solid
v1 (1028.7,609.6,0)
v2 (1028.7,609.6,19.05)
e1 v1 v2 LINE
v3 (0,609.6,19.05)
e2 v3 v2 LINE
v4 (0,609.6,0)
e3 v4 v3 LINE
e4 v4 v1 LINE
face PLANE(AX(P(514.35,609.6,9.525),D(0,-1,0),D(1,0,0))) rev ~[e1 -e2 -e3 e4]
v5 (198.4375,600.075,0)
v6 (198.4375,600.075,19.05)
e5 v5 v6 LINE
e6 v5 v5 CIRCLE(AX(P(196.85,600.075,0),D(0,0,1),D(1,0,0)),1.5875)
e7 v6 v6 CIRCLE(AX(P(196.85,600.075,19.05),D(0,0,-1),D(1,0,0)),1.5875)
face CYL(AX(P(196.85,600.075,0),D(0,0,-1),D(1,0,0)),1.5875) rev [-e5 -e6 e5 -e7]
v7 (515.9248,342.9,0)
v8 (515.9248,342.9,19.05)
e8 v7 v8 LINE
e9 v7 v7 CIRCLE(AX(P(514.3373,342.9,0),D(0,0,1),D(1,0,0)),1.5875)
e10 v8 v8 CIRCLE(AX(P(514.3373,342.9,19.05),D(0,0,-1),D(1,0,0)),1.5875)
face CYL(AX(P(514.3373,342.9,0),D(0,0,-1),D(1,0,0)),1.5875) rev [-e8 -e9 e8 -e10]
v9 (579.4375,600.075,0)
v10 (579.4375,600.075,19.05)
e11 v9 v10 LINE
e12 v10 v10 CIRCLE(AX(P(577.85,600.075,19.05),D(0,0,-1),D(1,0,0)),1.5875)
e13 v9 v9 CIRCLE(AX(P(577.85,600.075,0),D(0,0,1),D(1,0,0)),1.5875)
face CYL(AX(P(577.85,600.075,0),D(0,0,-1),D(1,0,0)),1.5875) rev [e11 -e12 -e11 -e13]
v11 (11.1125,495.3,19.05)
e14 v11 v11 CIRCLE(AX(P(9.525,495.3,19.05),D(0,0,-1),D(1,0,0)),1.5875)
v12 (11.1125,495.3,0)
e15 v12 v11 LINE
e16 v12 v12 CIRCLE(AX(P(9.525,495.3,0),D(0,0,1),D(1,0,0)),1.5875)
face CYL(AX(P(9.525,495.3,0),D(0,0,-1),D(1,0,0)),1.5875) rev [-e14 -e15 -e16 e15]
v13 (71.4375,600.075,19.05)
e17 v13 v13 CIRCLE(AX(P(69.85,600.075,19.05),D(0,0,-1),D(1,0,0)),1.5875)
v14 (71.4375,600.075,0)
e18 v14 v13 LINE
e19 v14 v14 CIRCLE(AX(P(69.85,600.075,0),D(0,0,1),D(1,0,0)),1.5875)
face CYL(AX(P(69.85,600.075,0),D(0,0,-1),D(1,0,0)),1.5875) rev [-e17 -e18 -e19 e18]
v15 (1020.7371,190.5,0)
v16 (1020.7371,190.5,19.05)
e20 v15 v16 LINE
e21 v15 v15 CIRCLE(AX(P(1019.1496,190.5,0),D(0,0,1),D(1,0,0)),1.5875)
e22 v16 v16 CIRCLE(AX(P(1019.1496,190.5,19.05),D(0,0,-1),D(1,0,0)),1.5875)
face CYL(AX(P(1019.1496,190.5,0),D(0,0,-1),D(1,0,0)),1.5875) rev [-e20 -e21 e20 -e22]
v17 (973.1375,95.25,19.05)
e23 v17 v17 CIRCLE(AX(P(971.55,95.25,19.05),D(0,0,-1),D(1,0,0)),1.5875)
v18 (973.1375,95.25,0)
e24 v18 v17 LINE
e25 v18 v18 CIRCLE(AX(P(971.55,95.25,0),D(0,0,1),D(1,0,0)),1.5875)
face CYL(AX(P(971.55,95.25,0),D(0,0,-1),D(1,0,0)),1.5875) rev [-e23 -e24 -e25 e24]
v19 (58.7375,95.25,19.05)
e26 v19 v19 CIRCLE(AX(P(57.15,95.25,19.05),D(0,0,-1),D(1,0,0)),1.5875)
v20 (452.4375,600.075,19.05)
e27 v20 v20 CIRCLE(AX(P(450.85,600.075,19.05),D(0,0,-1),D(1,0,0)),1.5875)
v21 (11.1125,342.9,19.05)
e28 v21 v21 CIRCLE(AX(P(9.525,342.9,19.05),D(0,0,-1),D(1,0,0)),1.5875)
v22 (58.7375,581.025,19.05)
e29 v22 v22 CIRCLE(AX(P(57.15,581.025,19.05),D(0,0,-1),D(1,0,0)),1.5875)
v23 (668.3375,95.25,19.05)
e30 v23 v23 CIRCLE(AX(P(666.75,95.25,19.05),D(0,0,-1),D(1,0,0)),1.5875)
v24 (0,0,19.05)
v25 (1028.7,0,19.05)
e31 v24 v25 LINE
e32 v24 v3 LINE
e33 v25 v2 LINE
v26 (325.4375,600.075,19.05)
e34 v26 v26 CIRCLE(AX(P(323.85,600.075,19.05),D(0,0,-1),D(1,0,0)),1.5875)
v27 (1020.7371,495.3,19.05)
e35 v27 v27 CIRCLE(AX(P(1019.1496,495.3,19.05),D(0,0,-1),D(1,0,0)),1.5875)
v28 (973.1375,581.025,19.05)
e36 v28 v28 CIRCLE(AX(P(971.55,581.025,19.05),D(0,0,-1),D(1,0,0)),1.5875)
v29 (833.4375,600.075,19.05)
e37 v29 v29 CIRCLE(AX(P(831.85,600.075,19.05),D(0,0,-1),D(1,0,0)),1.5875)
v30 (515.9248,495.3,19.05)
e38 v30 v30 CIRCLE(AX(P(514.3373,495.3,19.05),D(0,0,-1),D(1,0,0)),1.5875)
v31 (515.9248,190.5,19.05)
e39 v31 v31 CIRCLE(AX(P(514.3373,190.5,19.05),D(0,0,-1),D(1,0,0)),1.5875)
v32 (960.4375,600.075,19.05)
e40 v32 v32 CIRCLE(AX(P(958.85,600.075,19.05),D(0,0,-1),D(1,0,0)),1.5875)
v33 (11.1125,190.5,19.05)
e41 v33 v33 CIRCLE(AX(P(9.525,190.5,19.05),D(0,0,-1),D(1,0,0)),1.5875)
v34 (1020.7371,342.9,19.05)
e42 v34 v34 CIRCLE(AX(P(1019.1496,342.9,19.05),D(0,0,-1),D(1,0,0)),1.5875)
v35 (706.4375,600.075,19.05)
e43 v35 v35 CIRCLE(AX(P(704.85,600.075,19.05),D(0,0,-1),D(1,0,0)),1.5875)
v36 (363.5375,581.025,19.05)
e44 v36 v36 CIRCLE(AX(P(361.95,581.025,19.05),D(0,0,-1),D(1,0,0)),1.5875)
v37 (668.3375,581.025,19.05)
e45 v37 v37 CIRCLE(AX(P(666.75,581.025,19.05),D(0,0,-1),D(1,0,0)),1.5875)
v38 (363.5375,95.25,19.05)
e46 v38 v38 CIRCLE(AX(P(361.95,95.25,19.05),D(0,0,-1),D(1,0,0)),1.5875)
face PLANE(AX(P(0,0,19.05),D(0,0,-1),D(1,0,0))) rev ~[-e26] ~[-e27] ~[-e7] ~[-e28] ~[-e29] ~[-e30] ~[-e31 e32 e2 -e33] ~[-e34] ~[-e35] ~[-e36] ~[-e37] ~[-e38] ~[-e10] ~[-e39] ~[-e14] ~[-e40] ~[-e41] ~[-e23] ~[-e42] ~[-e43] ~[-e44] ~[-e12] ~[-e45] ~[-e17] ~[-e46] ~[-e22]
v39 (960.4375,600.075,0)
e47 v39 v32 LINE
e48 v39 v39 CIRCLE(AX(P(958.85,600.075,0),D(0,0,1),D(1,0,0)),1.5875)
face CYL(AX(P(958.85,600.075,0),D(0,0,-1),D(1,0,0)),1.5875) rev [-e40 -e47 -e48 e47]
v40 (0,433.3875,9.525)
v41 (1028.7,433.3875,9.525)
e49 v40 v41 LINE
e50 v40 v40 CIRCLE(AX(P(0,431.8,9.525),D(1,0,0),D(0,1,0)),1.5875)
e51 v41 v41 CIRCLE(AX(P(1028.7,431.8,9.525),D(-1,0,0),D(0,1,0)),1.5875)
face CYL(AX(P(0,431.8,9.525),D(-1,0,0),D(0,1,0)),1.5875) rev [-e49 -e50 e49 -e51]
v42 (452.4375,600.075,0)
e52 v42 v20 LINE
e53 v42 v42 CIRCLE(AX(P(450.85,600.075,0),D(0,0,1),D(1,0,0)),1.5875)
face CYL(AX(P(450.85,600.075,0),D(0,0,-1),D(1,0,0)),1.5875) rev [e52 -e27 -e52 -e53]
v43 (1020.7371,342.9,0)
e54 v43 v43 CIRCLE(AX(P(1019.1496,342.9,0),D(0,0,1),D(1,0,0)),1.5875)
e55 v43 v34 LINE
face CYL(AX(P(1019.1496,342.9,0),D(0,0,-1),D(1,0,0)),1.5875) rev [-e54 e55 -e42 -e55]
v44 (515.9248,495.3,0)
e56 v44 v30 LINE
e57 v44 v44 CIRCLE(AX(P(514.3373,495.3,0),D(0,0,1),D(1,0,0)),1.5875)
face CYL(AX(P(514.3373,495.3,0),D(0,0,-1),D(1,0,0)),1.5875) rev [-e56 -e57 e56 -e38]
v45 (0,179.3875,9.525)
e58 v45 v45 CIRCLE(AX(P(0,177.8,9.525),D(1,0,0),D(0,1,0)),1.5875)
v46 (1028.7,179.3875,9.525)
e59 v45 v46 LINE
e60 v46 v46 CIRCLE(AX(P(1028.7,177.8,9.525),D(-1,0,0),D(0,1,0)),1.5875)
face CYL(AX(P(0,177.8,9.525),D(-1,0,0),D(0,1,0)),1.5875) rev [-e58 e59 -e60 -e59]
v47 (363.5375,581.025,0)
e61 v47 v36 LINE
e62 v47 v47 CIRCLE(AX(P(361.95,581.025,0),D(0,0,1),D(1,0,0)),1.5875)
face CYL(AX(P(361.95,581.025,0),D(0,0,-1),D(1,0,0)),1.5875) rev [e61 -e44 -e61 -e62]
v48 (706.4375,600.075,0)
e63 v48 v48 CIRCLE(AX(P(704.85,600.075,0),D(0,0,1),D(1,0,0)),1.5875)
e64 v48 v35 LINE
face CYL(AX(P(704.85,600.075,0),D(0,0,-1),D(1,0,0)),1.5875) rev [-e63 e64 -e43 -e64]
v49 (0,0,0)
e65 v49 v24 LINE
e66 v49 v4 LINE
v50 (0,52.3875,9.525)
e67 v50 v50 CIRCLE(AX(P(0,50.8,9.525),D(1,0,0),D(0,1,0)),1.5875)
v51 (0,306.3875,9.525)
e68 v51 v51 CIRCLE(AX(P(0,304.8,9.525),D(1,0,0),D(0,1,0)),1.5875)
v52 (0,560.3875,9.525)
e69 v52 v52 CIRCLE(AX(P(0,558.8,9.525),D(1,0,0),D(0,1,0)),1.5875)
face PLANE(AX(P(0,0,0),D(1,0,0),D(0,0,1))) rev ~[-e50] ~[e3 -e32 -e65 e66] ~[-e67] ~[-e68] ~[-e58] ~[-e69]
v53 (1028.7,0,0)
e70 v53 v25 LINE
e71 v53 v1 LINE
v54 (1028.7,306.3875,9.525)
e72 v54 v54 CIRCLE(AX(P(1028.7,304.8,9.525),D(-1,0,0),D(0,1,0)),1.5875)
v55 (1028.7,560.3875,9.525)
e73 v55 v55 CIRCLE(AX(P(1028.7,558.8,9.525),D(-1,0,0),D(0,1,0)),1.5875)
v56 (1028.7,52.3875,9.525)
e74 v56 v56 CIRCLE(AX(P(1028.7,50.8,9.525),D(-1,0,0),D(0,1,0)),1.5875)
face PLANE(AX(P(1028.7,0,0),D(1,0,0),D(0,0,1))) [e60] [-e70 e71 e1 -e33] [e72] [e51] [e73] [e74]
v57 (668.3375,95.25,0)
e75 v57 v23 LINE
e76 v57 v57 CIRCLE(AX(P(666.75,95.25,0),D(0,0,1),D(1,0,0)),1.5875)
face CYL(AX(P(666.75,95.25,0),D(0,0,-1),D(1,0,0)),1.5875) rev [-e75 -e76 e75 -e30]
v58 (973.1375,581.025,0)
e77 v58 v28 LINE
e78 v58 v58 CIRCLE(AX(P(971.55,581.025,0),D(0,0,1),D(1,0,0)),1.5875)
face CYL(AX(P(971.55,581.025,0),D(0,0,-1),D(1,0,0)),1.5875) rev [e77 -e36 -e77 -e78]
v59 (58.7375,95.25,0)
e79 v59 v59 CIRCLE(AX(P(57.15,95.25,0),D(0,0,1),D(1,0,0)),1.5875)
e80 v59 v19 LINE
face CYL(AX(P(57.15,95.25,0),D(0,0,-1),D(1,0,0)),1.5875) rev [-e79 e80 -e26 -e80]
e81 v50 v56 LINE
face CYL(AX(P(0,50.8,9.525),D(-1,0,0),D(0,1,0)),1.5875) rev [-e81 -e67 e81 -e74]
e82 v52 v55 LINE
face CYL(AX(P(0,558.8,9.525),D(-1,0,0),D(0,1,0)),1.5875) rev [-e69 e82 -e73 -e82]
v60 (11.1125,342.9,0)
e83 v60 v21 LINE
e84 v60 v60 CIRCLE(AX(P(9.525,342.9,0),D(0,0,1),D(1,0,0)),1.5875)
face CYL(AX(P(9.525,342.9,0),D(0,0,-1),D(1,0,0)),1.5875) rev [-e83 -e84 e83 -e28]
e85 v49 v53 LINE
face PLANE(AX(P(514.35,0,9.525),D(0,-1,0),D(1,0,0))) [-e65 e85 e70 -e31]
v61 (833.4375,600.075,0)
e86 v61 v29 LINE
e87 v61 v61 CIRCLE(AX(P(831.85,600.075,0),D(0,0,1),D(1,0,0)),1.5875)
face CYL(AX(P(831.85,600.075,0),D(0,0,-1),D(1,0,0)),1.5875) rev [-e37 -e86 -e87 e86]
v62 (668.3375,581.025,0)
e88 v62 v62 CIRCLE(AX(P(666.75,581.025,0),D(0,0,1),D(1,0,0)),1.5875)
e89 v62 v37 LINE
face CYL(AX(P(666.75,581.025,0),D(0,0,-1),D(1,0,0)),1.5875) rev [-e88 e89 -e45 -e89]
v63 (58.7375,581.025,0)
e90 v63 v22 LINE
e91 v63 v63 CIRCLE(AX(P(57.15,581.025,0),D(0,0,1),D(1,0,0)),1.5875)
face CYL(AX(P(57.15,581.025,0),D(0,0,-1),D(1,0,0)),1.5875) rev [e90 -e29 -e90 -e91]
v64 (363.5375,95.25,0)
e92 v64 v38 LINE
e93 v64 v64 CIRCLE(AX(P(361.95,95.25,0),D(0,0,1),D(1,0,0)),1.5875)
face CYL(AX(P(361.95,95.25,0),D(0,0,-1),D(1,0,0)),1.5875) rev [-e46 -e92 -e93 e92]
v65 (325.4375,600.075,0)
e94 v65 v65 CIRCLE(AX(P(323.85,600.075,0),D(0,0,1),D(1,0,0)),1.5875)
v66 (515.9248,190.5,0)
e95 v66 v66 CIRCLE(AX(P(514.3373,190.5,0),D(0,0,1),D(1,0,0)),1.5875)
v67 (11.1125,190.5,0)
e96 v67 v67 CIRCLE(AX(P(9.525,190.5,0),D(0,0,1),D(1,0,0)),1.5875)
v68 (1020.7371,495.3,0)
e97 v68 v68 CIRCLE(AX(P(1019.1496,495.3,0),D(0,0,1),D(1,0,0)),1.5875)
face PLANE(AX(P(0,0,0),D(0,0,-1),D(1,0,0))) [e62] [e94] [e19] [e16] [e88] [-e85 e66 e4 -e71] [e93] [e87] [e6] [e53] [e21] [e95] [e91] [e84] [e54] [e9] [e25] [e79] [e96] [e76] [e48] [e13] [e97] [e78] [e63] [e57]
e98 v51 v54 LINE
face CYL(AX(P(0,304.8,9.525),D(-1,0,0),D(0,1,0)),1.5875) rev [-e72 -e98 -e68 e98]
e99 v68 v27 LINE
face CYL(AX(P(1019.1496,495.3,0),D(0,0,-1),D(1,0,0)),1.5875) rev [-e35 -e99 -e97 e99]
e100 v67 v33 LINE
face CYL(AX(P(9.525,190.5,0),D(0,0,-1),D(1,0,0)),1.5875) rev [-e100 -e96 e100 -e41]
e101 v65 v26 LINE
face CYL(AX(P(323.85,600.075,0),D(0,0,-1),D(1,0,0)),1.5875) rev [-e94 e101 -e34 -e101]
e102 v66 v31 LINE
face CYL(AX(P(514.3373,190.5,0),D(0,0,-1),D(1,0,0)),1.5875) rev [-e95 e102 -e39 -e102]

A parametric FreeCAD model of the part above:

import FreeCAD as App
import Part
import Sketcher
Q = App.Units.Quantity

doc = App.newDocument("Part")
params = doc.addObject("Spreadsheet::Sheet", "Params")
for row, (alias, value) in enumerate([
    ("sketch1_width", "40.5 in"),
    ("sketch1_height", "0.75 in"),
    ("pad1_length", "24 in"),
    ("sketch2_diameter", "0.125 in"),
    ("sketch3_diameter", "0.125 in"),
    ("sketch4_diameter", "0.125 in"),
    ("sketch5_diameter", "0.125 in"),
], start=1):
    params.set(f"A{row}", alias)
    params.set(f"B{row}", "=" + value)
    params.setAlias(f"B{row}", alias)

body = doc.addObject("PartDesign::Body", "Body")

# Sketch on XZ plane
sketch1 = body.newObject("Sketcher::SketchObject", "Sketch")
sketch1.AttachmentSupport = (doc.getObject("XZ_Plane"), [""])
sketch1.MapMode = "FlatFace"
sketch1.addGeometry([
    Part.LineSegment(App.Vector(0, 19.05, 0), App.Vector(0, 0, 0)),
    Part.LineSegment(App.Vector(0, 0, 0), App.Vector(1028.7, 0, 0)),
    Part.LineSegment(App.Vector(1028.7, 0, 0), App.Vector(1028.7, 19.05, 0)),
    Part.LineSegment(App.Vector(1028.7, 19.05, 0), App.Vector(0, 19.05, 0)),
], False)
sketch1.addConstraint([
    Sketcher.Constraint("Coincident", 0, 2, 1, 1),
    Sketcher.Constraint("Coincident", 1, 2, 2, 1),
    Sketcher.Constraint("Coincident", 2, 2, 3, 1),
    Sketcher.Constraint("Coincident", 3, 2, 0, 1),
    Sketcher.Constraint("Vertical", 0),
    Sketcher.Constraint("Horizontal", 1),
    Sketcher.Constraint("Vertical", 2),
    Sketcher.Constraint("Horizontal", 3),
    Sketcher.Constraint("Coincident", 0, 2, -1, 1),
    Sketcher.Constraint("DistanceX", 1, 1, 1, 2, Q("40.5 in")),
    Sketcher.Constraint("DistanceY", 0, 2, 0, 1, Q("0.75 in")),
])
sketch1.setExpression("Constraints[9]", "Params.sketch1_width")
sketch1.setExpression("Constraints[10]", "Params.sketch1_height")
pad1 = body.newObject("PartDesign::Pad", "Pad")
pad1.Profile = sketch1
pad1.setExpression("Length", "Params.pad1_length")
pad1.Reversed = True

# Sketch on XY plane
sketch2 = body.newObject("Sketcher::SketchObject", "Sketch001")
sketch2.AttachmentSupport = (doc.getObject("XY_Plane"), [""])
sketch2.MapMode = "FlatFace"
sketch2.addGeometry([
    Part.Circle(App.Vector(9.525, 495.3, 0), App.Vector(0, 0, 1), 1.5875),  # 0
    Part.Circle(App.Vector(9.525, 342.9, 0), App.Vector(0, 0, 1), 1.5875),  # 1
    Part.Circle(App.Vector(9.525, 190.5, 0), App.Vector(0, 0, 1), 1.5875),  # 2
    Part.Circle(App.Vector(514.3373, 495.3, 0), App.Vector(0, 0, 1), 1.5875),  # 3
    Part.Circle(App.Vector(514.3373, 342.9, 0), App.Vector(0, 0, 1), 1.5875),  # 4
    Part.Circle(App.Vector(514.3373, 190.5, 0), App.Vector(0, 0, 1), 1.5875),  # 5
    Part.Circle(App.Vector(1019.1496, 495.3, 0), App.Vector(0, 0, 1), 1.5875),  # 6
    Part.Circle(App.Vector(1019.1496, 342.9, 0), App.Vector(0, 0, 1), 1.5875),  # 7
    Part.Circle(App.Vector(1019.1496, 190.5, 0), App.Vector(0, 0, 1), 1.5875),  # 8
], False)
sketch2.addConstraint([
    Sketcher.Constraint("Equal", 0, 1),
    Sketcher.Constraint("Equal", 1, 2),
    Sketcher.Constraint("Equal", 2, 3),
    Sketcher.Constraint("Equal", 3, 4),
    Sketcher.Constraint("Equal", 4, 5),
    Sketcher.Constraint("Equal", 5, 6),
    Sketcher.Constraint("Equal", 6, 7),
    Sketcher.Constraint("Equal", 7, 8),
    Sketcher.Constraint("Horizontal", 0, 3, 3, 3),
    Sketcher.Constraint("Horizontal", 1, 3, 4, 3),
    Sketcher.Constraint("Horizontal", 2, 3, 5, 3),
    Sketcher.Constraint("Horizontal", 3, 3, 6, 3),
    Sketcher.Constraint("Horizontal", 4, 3, 7, 3),
    Sketcher.Constraint("Horizontal", 5, 3, 8, 3),
    Sketcher.Constraint("Vertical", 0, 3, 1, 3),
    Sketcher.Constraint("Vertical", 1, 3, 2, 3),
    Sketcher.Constraint("Vertical", 3, 3, 4, 3),
    Sketcher.Constraint("Vertical", 4, 3, 5, 3),
    Sketcher.Constraint("Vertical", 6, 3, 7, 3),
    Sketcher.Constraint("Vertical", 7, 3, 8, 3),
    Sketcher.Constraint("Diameter", 0, Q("0.125 in")),
    Sketcher.Constraint("DistanceY", 1, 3, 0, 3, Q("6 in")),
    Sketcher.Constraint("DistanceY", 2, 3, 1, 3, Q("6 in")),
    Sketcher.Constraint("DistanceY", -1, 1, 0, 3, Q("19.5 in")),
    Sketcher.Constraint("DistanceX", -1, 1, 0, 3, Q("0.375 in")),
    Sketcher.Constraint("DistanceX", -1, 1, 6, 3, Q("40.124 in")),
    Sketcher.Constraint("DistanceX", -1, 1, 3, 3, Q("20.2495 in")),
])
sketch2.setExpression("Constraints[20]", "Params.sketch2_diameter")
pocket1 = body.newObject("PartDesign::Pocket", "Pocket")
pocket1.Profile = sketch2
pocket1.Type = "ThroughAll"
pocket1.Reversed = True

# Sketch on YZ plane
sketch3 = body.newObject("Sketcher::SketchObject", "Sketch002")
sketch3.AttachmentSupport = (doc.getObject("YZ_Plane"), [""])
sketch3.MapMode = "FlatFace"
sketch3.addGeometry([
    Part.Circle(App.Vector(50.8, 9.525, 0), App.Vector(0, 0, 1), 1.5875),  # 0
    Part.Circle(App.Vector(177.8, 9.525, 0), App.Vector(0, 0, 1), 1.5875),  # 1
    Part.Circle(App.Vector(304.8, 9.525, 0), App.Vector(0, 0, 1), 1.5875),  # 2
    Part.Circle(App.Vector(431.8, 9.525, 0), App.Vector(0, 0, 1), 1.5875),  # 3
    Part.Circle(App.Vector(558.8, 9.525, 0), App.Vector(0, 0, 1), 1.5875),  # 4
], False)
sketch3.addConstraint([
    Sketcher.Constraint("Equal", 0, 1),
    Sketcher.Constraint("Equal", 1, 2),
    Sketcher.Constraint("Equal", 2, 3),
    Sketcher.Constraint("Equal", 3, 4),
    Sketcher.Constraint("Horizontal", 0, 3, 1, 3),
    Sketcher.Constraint("Horizontal", 1, 3, 2, 3),
    Sketcher.Constraint("Horizontal", 2, 3, 3, 3),
    Sketcher.Constraint("Horizontal", 3, 3, 4, 3),
    Sketcher.Constraint("Diameter", 0, Q("0.125 in")),
    Sketcher.Constraint("DistanceX", -1, 1, 0, 3, Q("2 in")),
    Sketcher.Constraint("DistanceX", -1, 1, 1, 3, Q("7 in")),
    Sketcher.Constraint("DistanceX", -1, 1, 2, 3, Q("12 in")),
    Sketcher.Constraint("DistanceX", -1, 1, 3, 3, Q("17 in")),
    Sketcher.Constraint("DistanceX", -1, 1, 4, 3, Q("22 in")),
    Sketcher.Constraint("DistanceY", -1, 1, 0, 3, Q("0.375 in")),
])
sketch3.setExpression("Constraints[8]", "Params.sketch3_diameter")
pocket2 = body.newObject("PartDesign::Pocket", "Pocket001")
pocket2.Profile = sketch3
pocket2.Type = "ThroughAll"
pocket2.Reversed = True

# Sketch on XY plane
sketch4 = body.newObject("Sketcher::SketchObject", "Sketch003")
sketch4.AttachmentSupport = (doc.getObject("XY_Plane"), [""])
sketch4.MapMode = "FlatFace"
sketch4.addGeometry([
    Part.Circle(App.Vector(57.15, 581.025, 0), App.Vector(0, 0, 1), 1.5875),  # 0
    Part.Circle(App.Vector(57.15, 95.25, 0), App.Vector(0, 0, 1), 1.5875),  # 1
    Part.Circle(App.Vector(361.95, 581.025, 0), App.Vector(0, 0, 1), 1.5875),  # 2
    Part.Circle(App.Vector(361.95, 95.25, 0), App.Vector(0, 0, 1), 1.5875),  # 3
    Part.Circle(App.Vector(666.75, 581.025, 0), App.Vector(0, 0, 1), 1.5875),  # 4
    Part.Circle(App.Vector(666.75, 95.25, 0), App.Vector(0, 0, 1), 1.5875),  # 5
    Part.Circle(App.Vector(971.55, 581.025, 0), App.Vector(0, 0, 1), 1.5875),  # 6
    Part.Circle(App.Vector(971.55, 95.25, 0), App.Vector(0, 0, 1), 1.5875),  # 7
], False)
sketch4.addConstraint([
    Sketcher.Constraint("Equal", 0, 1),
    Sketcher.Constraint("Equal", 1, 2),
    Sketcher.Constraint("Equal", 2, 3),
    Sketcher.Constraint("Equal", 3, 4),
    Sketcher.Constraint("Equal", 4, 5),
    Sketcher.Constraint("Equal", 5, 6),
    Sketcher.Constraint("Equal", 6, 7),
    Sketcher.Constraint("Horizontal", 0, 3, 2, 3),
    Sketcher.Constraint("Horizontal", 1, 3, 3, 3),
    Sketcher.Constraint("Horizontal", 2, 3, 4, 3),
    Sketcher.Constraint("Horizontal", 3, 3, 5, 3),
    Sketcher.Constraint("Horizontal", 4, 3, 6, 3),
    Sketcher.Constraint("Horizontal", 5, 3, 7, 3),
    Sketcher.Constraint("Vertical", 0, 3, 1, 3),
    Sketcher.Constraint("Vertical", 2, 3, 3, 3),
    Sketcher.Constraint("Vertical", 4, 3, 5, 3),
    Sketcher.Constraint("Vertical", 6, 3, 7, 3),
    Sketcher.Constraint("Diameter", 0, Q("0.125 in")),
    Sketcher.Constraint("DistanceX", 0, 3, 2, 3, Q("12 in")),
    Sketcher.Constraint("DistanceX", 2, 3, 4, 3, Q("12 in")),
    Sketcher.Constraint("DistanceX", 4, 3, 6, 3, Q("12 in")),
    Sketcher.Constraint("DistanceX", -1, 1, 0, 3, Q("2.25 in")),
    Sketcher.Constraint("DistanceY", -1, 1, 1, 3, Q("3.75 in")),
    Sketcher.Constraint("DistanceY", -1, 1, 0, 3, Q("22.875 in")),
])
sketch4.setExpression("Constraints[17]", "Params.sketch4_diameter")
pocket3 = body.newObject("PartDesign::Pocket", "Pocket002")
pocket3.Profile = sketch4
pocket3.Type = "ThroughAll"
pocket3.Reversed = True

# Sketch on XY plane
sketch5 = body.newObject("Sketcher::SketchObject", "Sketch004")
sketch5.AttachmentSupport = (doc.getObject("XY_Plane"), [""])
sketch5.MapMode = "FlatFace"
sketch5.addGeometry([
    Part.Circle(App.Vector(69.85, 600.075, 0), App.Vector(0, 0, 1), 1.5875),  # 0
    Part.Circle(App.Vector(196.85, 600.075, 0), App.Vector(0, 0, 1), 1.5875),  # 1
    Part.Circle(App.Vector(323.85, 600.075, 0), App.Vector(0, 0, 1), 1.5875),  # 2
    Part.Circle(App.Vector(450.85, 600.075, 0), App.Vector(0, 0, 1), 1.5875),  # 3
    Part.Circle(App.Vector(577.85, 600.075, 0), App.Vector(0, 0, 1), 1.5875),  # 4
    Part.Circle(App.Vector(704.85, 600.075, 0), App.Vector(0, 0, 1), 1.5875),  # 5
    Part.Circle(App.Vector(831.85, 600.075, 0), App.Vector(0, 0, 1), 1.5875),  # 6
    Part.Circle(App.Vector(958.85, 600.075, 0), App.Vector(0, 0, 1), 1.5875),  # 7
], False)
sketch5.addConstraint([
    Sketcher.Constraint("Equal", 0, 1),
    Sketcher.Constraint("Equal", 1, 2),
    Sketcher.Constraint("Equal", 2, 3),
    Sketcher.Constraint("Equal", 3, 4),
    Sketcher.Constraint("Equal", 4, 5),
    Sketcher.Constraint("Equal", 5, 6),
    Sketcher.Constraint("Equal", 6, 7),
    Sketcher.Constraint("Horizontal", 0, 3, 1, 3),
    Sketcher.Constraint("Horizontal", 1, 3, 2, 3),
    Sketcher.Constraint("Horizontal", 2, 3, 3, 3),
    Sketcher.Constraint("Horizontal", 3, 3, 4, 3),
    Sketcher.Constraint("Horizontal", 4, 3, 5, 3),
    Sketcher.Constraint("Horizontal", 5, 3, 6, 3),
    Sketcher.Constraint("Horizontal", 6, 3, 7, 3),
    Sketcher.Constraint("Diameter", 0, Q("0.125 in")),
    Sketcher.Constraint("DistanceX", 0, 3, 1, 3, Q("5 in")),
    Sketcher.Constraint("DistanceX", 1, 3, 2, 3, Q("5 in")),
    Sketcher.Constraint("DistanceX", 2, 3, 3, 3, Q("5 in")),
    Sketcher.Constraint("DistanceX", 3, 3, 4, 3, Q("5 in")),
    Sketcher.Constraint("DistanceX", 4, 3, 5, 3, Q("5 in")),
    Sketcher.Constraint("DistanceX", 5, 3, 6, 3, Q("5 in")),
    Sketcher.Constraint("DistanceX", 6, 3, 7, 3, Q("5 in")),
    Sketcher.Constraint("DistanceX", -1, 1, 0, 3, Q("2.75 in")),
    Sketcher.Constraint("DistanceY", -1, 1, 0, 3, Q("23.625 in")),
])
sketch5.setExpression("Constraints[14]", "Params.sketch5_diameter")
pocket4 = body.newObject("PartDesign::Pocket", "Pocket003")
pocket4.Profile = sketch5
pocket4.Type = "ThroughAll"
pocket4.Reversed = True

doc.recompute()
